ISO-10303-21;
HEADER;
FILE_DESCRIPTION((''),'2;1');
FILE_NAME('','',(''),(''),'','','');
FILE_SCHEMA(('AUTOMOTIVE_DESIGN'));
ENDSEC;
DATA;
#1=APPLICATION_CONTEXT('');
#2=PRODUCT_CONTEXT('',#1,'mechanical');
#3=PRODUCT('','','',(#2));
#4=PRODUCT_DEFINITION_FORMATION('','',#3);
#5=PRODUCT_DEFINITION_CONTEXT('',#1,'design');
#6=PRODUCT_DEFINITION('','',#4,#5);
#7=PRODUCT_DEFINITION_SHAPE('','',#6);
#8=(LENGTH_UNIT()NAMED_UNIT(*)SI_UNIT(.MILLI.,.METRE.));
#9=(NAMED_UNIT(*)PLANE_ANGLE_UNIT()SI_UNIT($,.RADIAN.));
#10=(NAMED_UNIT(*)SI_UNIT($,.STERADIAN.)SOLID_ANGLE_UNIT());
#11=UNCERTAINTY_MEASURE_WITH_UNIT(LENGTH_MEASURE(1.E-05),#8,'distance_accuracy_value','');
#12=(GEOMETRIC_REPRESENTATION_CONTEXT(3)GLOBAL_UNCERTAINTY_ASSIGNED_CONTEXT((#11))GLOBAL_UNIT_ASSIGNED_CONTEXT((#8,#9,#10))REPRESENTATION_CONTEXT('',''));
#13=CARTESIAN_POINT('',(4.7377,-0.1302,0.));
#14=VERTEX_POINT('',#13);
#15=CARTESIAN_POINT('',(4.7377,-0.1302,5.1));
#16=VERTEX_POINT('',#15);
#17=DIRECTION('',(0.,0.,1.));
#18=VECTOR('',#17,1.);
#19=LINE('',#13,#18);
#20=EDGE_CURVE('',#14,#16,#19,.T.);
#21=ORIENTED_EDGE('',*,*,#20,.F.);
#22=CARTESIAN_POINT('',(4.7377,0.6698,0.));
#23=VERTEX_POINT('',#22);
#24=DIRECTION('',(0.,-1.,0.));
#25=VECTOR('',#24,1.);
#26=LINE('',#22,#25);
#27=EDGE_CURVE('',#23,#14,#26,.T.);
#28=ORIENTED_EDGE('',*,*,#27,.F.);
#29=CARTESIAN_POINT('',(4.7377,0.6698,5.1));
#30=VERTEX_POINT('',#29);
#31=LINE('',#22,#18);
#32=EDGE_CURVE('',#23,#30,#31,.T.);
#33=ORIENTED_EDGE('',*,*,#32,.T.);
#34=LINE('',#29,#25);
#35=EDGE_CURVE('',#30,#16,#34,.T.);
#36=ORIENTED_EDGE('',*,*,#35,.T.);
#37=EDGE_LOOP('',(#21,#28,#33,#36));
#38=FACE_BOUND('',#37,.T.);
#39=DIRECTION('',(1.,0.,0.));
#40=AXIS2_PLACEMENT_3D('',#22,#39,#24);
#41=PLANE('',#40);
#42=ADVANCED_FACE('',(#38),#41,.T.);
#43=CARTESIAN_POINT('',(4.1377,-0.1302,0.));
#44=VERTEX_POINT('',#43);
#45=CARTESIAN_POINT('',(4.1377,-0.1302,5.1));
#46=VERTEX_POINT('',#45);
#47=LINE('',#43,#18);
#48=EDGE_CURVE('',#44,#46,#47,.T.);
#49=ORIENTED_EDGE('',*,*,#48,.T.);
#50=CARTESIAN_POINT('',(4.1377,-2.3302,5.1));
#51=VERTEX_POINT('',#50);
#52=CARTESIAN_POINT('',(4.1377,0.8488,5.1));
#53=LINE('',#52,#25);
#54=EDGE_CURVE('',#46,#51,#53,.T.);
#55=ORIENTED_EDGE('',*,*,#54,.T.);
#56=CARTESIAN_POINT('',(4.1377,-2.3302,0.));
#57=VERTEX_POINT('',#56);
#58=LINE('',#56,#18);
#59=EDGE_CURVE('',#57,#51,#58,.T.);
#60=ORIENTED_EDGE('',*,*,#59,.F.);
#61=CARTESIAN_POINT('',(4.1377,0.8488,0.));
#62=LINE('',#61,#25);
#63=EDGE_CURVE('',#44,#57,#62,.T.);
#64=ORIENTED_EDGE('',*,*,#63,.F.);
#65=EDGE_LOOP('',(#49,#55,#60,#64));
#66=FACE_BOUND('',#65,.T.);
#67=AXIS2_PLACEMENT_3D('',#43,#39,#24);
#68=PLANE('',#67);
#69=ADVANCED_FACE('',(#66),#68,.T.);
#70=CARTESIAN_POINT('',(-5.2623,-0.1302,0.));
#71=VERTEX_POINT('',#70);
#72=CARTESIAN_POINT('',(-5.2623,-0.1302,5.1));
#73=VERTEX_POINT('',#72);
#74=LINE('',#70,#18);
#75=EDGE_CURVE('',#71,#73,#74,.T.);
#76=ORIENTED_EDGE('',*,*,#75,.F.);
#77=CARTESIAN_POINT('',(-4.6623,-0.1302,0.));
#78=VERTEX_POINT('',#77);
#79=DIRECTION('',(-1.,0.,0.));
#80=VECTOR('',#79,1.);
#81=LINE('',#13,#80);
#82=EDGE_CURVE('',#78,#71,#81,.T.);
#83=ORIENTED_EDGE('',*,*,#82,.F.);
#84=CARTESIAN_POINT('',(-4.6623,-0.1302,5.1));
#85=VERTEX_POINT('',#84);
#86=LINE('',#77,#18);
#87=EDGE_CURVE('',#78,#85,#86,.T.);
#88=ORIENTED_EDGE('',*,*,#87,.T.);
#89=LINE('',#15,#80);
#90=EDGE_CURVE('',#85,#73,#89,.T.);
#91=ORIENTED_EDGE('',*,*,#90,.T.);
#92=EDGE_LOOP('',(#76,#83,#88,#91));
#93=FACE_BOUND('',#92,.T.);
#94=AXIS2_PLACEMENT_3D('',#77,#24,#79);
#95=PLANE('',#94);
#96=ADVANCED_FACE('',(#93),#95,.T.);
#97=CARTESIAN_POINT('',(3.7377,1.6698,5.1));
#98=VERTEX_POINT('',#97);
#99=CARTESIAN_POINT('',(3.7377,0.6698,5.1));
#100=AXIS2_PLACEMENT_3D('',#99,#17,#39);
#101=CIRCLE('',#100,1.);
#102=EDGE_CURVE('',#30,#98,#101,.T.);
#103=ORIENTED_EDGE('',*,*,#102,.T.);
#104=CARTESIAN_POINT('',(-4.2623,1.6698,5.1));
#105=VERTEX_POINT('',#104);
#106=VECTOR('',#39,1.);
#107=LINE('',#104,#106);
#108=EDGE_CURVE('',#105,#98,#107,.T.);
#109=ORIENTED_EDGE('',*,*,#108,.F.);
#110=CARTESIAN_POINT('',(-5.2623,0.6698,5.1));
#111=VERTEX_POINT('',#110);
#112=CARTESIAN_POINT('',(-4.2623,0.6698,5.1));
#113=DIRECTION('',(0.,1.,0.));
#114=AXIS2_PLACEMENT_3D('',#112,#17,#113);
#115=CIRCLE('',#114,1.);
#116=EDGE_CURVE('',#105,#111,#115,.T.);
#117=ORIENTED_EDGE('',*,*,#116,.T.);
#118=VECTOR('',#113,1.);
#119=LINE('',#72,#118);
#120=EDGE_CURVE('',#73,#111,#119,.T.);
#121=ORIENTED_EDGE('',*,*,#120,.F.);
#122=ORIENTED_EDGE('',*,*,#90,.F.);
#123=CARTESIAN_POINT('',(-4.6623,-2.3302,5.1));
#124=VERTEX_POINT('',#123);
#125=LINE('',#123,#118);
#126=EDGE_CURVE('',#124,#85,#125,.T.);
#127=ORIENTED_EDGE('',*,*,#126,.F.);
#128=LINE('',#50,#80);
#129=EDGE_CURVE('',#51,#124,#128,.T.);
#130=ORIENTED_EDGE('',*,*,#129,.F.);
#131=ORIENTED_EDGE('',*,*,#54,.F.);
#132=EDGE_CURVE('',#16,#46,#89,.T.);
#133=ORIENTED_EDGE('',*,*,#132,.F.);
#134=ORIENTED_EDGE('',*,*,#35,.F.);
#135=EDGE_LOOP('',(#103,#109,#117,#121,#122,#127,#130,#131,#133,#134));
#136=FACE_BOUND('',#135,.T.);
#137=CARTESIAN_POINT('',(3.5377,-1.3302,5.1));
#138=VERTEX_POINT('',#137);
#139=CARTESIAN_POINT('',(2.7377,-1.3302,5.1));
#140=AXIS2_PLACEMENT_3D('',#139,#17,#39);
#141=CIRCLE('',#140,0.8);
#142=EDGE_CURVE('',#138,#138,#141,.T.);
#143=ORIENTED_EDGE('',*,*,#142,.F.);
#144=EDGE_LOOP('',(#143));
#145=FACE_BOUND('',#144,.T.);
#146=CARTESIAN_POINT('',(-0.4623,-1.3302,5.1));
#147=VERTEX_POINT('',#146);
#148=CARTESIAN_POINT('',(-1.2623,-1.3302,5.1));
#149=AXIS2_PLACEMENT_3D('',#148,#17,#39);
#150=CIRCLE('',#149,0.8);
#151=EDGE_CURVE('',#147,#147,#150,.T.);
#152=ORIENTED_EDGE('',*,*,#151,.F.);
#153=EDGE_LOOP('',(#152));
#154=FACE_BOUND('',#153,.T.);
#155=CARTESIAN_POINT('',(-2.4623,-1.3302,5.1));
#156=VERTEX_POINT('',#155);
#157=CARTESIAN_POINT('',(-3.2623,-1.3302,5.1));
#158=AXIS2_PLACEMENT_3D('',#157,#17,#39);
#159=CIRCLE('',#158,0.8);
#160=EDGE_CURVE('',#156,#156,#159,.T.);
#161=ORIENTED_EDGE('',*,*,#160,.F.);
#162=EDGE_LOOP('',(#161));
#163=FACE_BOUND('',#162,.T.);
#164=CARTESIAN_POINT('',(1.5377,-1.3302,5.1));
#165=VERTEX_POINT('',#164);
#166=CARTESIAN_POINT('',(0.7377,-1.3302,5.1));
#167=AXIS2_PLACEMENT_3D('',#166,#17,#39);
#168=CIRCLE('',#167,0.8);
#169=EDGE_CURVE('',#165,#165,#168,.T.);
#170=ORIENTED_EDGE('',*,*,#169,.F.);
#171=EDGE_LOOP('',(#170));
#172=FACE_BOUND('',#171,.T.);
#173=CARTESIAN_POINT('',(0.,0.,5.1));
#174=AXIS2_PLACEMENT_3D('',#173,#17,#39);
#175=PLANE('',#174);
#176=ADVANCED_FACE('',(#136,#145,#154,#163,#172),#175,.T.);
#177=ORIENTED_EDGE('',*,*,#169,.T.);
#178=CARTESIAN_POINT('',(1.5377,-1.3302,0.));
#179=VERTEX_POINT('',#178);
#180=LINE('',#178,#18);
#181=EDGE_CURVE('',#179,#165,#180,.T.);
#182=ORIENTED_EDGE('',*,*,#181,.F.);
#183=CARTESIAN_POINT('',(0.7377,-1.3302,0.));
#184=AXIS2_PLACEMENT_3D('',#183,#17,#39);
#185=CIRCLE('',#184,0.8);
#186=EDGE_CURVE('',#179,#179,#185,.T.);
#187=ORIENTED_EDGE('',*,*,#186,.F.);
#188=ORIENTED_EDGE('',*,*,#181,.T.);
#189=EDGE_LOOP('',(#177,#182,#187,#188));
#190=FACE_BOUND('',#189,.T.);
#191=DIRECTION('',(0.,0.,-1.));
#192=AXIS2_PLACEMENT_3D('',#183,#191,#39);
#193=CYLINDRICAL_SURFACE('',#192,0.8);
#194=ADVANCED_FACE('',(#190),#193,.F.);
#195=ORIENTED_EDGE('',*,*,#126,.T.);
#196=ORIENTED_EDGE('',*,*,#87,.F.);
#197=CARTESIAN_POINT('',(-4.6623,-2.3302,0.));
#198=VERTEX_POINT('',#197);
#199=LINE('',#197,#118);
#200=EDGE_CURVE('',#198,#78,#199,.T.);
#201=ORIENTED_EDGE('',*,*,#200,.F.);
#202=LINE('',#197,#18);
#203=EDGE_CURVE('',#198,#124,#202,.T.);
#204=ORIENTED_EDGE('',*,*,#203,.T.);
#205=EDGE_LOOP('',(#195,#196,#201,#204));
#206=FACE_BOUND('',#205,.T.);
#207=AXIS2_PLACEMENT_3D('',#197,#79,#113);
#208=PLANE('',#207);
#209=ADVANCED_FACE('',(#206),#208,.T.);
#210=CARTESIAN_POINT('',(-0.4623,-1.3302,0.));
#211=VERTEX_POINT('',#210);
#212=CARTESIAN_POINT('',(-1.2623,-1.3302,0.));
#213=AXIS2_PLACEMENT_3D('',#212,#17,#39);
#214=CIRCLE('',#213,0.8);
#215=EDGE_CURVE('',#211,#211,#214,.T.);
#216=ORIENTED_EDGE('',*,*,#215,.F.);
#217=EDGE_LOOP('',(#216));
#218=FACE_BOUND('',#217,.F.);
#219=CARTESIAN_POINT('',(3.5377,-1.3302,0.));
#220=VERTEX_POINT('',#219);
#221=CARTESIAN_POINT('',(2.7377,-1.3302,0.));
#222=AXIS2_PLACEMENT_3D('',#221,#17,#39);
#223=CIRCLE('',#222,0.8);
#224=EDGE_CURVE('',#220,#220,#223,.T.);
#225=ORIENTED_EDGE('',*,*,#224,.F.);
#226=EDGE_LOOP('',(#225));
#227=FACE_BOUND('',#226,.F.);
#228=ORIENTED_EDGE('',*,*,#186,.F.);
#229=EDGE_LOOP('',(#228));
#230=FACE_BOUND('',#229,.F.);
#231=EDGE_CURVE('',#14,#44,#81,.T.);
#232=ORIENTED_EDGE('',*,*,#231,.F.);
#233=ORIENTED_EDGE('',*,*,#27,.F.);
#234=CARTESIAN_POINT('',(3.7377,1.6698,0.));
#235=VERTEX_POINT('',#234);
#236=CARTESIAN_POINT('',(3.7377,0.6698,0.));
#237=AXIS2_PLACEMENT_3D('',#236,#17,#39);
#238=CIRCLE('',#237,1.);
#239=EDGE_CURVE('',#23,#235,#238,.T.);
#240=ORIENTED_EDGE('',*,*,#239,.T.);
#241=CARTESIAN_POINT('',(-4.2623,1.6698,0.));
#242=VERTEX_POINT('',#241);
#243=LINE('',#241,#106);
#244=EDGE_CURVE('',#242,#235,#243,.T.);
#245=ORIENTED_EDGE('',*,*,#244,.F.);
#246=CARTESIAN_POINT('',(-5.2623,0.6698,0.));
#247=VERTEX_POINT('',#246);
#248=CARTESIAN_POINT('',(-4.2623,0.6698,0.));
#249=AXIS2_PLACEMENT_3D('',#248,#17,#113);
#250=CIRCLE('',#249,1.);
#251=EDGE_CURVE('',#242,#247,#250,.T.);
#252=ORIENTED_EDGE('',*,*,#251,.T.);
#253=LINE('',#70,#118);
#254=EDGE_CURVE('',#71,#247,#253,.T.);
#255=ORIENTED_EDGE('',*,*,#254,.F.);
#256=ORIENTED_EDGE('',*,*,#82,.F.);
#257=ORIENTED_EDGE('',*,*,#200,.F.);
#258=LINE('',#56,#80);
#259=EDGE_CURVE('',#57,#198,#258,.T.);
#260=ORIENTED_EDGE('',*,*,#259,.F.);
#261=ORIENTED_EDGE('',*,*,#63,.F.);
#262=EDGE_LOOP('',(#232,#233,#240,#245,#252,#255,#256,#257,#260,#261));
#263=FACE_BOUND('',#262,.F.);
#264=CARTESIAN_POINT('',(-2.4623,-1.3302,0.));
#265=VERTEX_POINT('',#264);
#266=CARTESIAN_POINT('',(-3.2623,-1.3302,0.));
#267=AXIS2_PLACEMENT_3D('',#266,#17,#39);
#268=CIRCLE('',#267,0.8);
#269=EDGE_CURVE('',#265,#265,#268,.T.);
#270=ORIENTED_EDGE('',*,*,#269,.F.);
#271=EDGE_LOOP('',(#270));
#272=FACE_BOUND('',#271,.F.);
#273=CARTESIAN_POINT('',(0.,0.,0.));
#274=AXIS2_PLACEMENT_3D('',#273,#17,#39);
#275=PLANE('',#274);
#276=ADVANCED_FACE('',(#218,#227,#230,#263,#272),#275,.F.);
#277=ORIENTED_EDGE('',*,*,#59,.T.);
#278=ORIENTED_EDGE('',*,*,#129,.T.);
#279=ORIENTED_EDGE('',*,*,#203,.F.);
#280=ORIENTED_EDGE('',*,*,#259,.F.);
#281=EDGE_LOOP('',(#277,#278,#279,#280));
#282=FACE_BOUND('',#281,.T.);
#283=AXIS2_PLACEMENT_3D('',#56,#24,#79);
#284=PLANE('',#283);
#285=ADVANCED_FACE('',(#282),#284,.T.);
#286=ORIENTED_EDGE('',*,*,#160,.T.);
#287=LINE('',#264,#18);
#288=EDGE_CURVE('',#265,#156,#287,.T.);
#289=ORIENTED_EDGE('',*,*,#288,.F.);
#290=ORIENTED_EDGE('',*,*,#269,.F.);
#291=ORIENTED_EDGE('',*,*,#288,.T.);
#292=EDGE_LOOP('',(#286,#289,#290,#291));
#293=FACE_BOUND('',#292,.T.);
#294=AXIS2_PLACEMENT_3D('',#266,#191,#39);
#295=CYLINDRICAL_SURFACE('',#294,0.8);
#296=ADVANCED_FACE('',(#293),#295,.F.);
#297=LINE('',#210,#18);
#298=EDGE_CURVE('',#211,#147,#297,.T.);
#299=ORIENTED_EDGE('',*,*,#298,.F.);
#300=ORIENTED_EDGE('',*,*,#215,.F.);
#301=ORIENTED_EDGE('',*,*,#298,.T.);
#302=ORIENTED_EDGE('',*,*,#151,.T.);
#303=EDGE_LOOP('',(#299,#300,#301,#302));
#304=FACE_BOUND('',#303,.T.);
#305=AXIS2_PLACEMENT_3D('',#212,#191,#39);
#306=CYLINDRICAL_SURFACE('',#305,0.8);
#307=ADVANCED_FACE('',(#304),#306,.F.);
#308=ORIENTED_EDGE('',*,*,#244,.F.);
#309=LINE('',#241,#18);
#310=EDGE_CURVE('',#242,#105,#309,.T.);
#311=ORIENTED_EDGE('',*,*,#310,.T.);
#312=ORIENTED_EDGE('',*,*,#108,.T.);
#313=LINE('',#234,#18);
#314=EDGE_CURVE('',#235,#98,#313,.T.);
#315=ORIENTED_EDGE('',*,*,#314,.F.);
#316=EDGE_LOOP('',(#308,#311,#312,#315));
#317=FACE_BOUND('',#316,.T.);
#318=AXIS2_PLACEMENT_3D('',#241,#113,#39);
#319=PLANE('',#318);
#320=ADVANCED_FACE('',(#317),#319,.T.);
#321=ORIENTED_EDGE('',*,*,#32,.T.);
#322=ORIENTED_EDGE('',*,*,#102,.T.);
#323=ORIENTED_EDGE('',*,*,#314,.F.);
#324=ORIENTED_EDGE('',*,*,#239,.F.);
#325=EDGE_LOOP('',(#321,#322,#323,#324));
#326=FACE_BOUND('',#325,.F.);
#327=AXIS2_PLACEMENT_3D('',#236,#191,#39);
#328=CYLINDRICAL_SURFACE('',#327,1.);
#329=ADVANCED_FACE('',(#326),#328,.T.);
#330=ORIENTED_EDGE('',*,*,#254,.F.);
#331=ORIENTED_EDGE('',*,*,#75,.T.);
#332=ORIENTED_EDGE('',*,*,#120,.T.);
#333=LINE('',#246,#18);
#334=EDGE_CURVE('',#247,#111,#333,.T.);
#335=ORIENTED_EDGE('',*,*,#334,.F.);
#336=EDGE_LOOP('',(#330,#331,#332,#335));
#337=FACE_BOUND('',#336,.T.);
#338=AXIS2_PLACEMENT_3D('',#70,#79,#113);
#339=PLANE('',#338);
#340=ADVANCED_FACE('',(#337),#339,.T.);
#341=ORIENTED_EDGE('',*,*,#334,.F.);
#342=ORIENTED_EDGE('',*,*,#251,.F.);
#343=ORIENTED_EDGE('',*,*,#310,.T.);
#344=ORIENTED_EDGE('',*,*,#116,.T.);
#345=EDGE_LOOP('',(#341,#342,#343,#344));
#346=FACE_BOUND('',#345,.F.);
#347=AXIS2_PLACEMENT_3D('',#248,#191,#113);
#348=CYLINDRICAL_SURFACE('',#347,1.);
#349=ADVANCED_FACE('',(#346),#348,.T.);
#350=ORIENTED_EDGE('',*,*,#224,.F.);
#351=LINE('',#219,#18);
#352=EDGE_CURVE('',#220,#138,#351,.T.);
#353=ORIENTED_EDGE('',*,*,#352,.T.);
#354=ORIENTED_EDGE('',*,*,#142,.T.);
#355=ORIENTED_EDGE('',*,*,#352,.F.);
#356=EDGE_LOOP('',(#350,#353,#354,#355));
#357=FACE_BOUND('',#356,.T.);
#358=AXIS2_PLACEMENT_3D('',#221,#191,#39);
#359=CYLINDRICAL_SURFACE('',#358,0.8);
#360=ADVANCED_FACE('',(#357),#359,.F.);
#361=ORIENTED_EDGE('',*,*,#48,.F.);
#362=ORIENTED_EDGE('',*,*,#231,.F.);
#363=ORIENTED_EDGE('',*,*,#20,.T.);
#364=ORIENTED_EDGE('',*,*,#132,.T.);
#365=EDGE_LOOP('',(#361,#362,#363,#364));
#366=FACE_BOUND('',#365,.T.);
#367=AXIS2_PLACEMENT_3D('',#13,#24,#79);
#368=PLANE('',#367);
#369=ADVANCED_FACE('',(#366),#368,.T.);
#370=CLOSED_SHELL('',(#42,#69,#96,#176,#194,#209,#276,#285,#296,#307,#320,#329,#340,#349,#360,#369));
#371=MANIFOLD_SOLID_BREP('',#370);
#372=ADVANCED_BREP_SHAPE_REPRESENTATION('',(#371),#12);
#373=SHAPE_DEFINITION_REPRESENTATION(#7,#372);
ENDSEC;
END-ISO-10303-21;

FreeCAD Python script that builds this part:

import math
import FreeCAD as App
import Part
import Sketcher
Q = App.Units.Quantity

doc = App.newDocument("Part")
body = doc.addObject("PartDesign::Body", "Body")

# Sketch on XY plane
sketch1 = body.newObject("Sketcher::SketchObject", "Sketch")
sketch1.AttachmentSupport = (doc.getObject("XY_Plane"), [""])
sketch1.MapMode = "FlatFace"
sketch1.addGeometry([
    Part.LineSegment(App.Vector(-5.3, -0.1, 0), App.Vector(-4.7, -0.1, 0)),  # 0
    Part.LineSegment(App.Vector(-4.7, -0.1, 0), App.Vector(-4.7, -2.3, 0)),  # 1
    Part.LineSegment(App.Vector(-4.7, -2.3, 0), App.Vector(4.1, -2.3, 0)),  # 2
    Part.LineSegment(App.Vector(4.1, -2.3, 0), App.Vector(4.1, -0.1, 0)),  # 3
    Part.LineSegment(App.Vector(4.1, -0.1, 0), App.Vector(4.7, -0.1, 0)),  # 4
    Part.LineSegment(App.Vector(4.7, -0.1, 0), App.Vector(4.7, 0.7, 0)),  # 5
    Part.ArcOfCircle(Part.Circle(App.Vector(3.7, 0.7, 0), App.Vector(0, 0, 1), 1), math.radians(0), math.radians(90)),  # 6
    Part.LineSegment(App.Vector(3.7, 1.7, 0), App.Vector(-4.3, 1.7, 0)),  # 7
    Part.ArcOfCircle(Part.Circle(App.Vector(-4.3, 0.7, 0), App.Vector(0, 0, 1), 1), math.radians(90), math.radians(180)),  # 8
    Part.LineSegment(App.Vector(-5.3, 0.7, 0), App.Vector(-5.3, -0.1, 0)),  # 9
    Part.Circle(App.Vector(2.7, -1.3, 0), App.Vector(0, 0, 1), 0.8),  # 10
    Part.Circle(App.Vector(-3.3, -1.3, 0), App.Vector(0, 0, 1), 0.8),  # 11
    Part.Circle(App.Vector(-1.3, -1.3, 0), App.Vector(0, 0, 1), 0.8),  # 12
    Part.Circle(App.Vector(0.7, -1.3, 0), App.Vector(0, 0, 1), 0.8),  # 13
], False)
sketch1.addConstraint([
    Sketcher.Constraint("Coincident", 0, 2, 1, 1),
    Sketcher.Constraint("Coincident", 1, 2, 2, 1),
    Sketcher.Constraint("Coincident", 2, 2, 3, 1),
    Sketcher.Constraint("Coincident", 3, 2, 4, 1),
    Sketcher.Constraint("Coincident", 4, 2, 5, 1),
    Sketcher.Constraint("Tangent", 5, 2, 6, 1),
    Sketcher.Constraint("Tangent", 6, 2, 7, 1),
    Sketcher.Constraint("Tangent", 7, 2, 8, 1),
    Sketcher.Constraint("Tangent", 8, 2, 9, 1),
    Sketcher.Constraint("Coincident", 9, 2, 0, 1),
    Sketcher.Constraint("Horizontal", 0),
    Sketcher.Constraint("Vertical", 1),
    Sketcher.Constraint("Horizontal", 2),
    Sketcher.Constraint("Vertical", 3),
    Sketcher.Constraint("Horizontal", 4),
    Sketcher.Constraint("Vertical", 5),
    Sketcher.Constraint("Horizontal", 7),
    Sketcher.Constraint("Vertical", 9),
    Sketcher.Constraint("Equal", 6, 8),
    Sketcher.Constraint("Equal", 10, 11),
    Sketcher.Constraint("Equal", 11, 12),
    Sketcher.Constraint("Equal", 12, 13),
    Sketcher.Constraint("Horizontal", 10, 3, 11, 3),
    Sketcher.Constraint("Horizontal", 11, 3, 12, 3),
    Sketcher.Constraint("Horizontal", 12, 3, 13, 3),
    Sketcher.Constraint("Horizontal", 0, 2, 3, 2),
    Sketcher.Constraint("Equal", 0, 4),
    Sketcher.Constraint("Radius", 6, Q("1 mm")),
    Sketcher.Constraint("Diameter", 10, Q("1.6 mm")),
    Sketcher.Constraint("DistanceX", 0, 1, 0, 2, Q("0.6 mm")),
    Sketcher.Constraint("DistanceX", 2, 1, 2, 2, Q("8.8 mm")),
    Sketcher.Constraint("DistanceX", 10, 3, 6, 3, Q("1 mm")),
    Sketcher.Constraint("DistanceY", 10, 3, 6, 3, Q("2 mm")),
    Sketcher.Constraint("DistanceX", 8, 3, 11, 3, Q("1 mm")),
    Sketcher.Constraint("DistanceX", 11, 3, 12, 3, Q("2 mm")),
    Sketcher.Constraint("DistanceX", 13, 3, 10, 3, Q("2 mm")),
    Sketcher.Constraint("DistanceY", 1, 2, 11, 3, Q("1 mm")),
    Sketcher.Constraint("DistanceY", 3, 2, 6, 2, Q("1.8 mm")),
    Sketcher.Constraint("DistanceX", -1, 1, 6, 3, Q("3.7377 mm")),
    Sketcher.Constraint("DistanceY", -1, 1, 6, 3, Q("0.6698 mm")),
])
pad1 = body.newObject("PartDesign::Pad", "Pad")
pad1.Profile = sketch1
pad1.Length = 5.1

doc.recompute()
